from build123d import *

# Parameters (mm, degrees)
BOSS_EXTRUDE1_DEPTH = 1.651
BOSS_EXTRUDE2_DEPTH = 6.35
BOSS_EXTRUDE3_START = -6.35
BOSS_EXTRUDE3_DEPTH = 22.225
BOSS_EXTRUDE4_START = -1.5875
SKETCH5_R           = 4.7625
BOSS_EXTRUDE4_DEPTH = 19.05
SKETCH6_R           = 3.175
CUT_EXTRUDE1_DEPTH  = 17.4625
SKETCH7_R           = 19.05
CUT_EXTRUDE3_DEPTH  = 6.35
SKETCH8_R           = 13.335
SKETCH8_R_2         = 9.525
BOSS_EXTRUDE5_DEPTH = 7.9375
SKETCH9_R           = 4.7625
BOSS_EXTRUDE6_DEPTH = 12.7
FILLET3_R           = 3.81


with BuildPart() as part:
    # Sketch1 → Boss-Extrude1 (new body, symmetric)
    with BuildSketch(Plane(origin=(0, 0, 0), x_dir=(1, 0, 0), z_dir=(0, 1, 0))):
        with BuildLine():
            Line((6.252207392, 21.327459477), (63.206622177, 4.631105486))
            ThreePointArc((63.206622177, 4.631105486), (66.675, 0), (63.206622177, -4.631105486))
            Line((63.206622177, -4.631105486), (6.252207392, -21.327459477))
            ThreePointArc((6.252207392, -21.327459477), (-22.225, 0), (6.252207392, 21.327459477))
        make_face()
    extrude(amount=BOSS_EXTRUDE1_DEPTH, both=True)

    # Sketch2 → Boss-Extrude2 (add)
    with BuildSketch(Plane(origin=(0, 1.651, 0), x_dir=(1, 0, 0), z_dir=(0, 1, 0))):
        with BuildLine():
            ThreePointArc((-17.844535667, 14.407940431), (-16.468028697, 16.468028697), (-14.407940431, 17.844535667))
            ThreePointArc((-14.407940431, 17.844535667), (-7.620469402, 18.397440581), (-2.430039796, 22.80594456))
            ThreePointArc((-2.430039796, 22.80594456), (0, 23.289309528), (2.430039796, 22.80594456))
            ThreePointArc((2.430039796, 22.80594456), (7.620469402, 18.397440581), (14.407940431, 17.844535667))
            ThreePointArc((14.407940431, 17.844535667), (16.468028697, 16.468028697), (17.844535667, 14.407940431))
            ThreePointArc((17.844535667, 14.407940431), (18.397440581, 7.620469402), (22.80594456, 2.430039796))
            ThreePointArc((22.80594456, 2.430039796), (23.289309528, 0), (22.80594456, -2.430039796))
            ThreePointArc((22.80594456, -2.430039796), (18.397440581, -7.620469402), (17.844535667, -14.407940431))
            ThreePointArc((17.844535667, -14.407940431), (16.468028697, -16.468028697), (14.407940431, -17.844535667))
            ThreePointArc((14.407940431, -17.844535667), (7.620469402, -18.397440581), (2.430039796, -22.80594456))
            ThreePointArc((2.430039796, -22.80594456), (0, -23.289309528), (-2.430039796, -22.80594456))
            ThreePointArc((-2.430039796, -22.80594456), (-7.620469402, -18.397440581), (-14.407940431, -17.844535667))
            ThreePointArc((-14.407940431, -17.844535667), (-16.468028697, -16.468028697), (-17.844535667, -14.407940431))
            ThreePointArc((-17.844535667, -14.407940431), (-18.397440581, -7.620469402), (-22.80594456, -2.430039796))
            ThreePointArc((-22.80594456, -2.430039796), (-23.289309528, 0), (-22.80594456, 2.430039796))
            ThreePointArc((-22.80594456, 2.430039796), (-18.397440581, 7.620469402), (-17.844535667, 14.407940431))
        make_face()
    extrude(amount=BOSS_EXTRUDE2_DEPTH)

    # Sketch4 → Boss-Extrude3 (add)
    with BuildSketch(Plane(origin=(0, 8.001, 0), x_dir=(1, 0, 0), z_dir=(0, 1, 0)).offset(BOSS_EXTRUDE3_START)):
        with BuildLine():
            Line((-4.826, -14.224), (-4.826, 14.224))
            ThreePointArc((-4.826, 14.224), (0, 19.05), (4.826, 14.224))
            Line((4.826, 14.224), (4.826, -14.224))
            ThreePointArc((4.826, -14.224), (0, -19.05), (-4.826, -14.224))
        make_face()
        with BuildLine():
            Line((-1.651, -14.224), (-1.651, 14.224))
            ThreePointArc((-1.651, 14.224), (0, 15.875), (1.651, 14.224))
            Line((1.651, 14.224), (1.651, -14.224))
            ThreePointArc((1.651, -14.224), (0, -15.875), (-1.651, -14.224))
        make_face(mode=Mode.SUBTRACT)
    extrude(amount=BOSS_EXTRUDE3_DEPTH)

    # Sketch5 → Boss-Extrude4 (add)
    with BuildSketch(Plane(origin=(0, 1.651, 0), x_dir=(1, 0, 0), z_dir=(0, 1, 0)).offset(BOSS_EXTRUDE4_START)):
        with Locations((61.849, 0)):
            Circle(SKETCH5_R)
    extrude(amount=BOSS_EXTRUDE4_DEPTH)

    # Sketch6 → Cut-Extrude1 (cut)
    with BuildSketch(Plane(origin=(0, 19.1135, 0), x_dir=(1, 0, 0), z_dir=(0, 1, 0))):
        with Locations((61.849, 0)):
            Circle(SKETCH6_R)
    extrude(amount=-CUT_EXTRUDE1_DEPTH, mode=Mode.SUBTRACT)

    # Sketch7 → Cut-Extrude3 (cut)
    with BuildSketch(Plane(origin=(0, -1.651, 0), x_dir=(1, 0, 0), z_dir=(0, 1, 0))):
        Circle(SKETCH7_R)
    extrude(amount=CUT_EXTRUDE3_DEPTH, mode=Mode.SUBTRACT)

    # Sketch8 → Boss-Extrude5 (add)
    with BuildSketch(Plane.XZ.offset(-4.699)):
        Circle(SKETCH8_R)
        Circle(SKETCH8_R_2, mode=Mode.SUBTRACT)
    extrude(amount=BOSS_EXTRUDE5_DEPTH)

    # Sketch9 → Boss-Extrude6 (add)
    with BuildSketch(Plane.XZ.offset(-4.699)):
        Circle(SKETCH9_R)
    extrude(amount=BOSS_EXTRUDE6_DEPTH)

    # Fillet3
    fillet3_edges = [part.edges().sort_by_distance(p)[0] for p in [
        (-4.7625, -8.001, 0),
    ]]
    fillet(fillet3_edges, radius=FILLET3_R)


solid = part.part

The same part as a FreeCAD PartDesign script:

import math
import FreeCAD as App
import Part
import Sketcher

V = App.Vector
Q = App.Units.Quantity


def edges_at(feature, points):
    """Names of the edges that pass closest to the given points."""
    edges = feature.Shape.Edges
    near = lambda p: min(range(len(edges)), key=lambda i: edges[i].distToShape(Part.Vertex(*p))[0])
    return sorted({f"Edge{near(p) + 1}" for p in points})

doc = App.newDocument("Part")
body = doc.addObject("PartDesign::Body", "Body")

# Sketch on XZ plane
sketch1 = doc.addObject("Sketcher::SketchObject", "Sketch")
body.addObject(sketch1)
sketch1.AttachmentSupport = (doc.XZ_Plane, [""])
sketch1.MapMode = "FlatFace"
sketch1.addGeometry(Part.LineSegment(V(63.206622, -4.631105, 0), V(6.252207, -21.327459, 0)), False)
sketch1.addGeometry(Part.ArcOfCircle(Part.Circle(V(0, 0, 0), V(0, 0, 1), 22.225), math.radians(73.661346), math.radians(286.338654)), False)
sketch1.addGeometry(Part.LineSegment(V(6.252207, 21.327459, 0), V(63.206622, 4.631105, 0)), False)
sketch1.addGeometry(Part.ArcOfCircle(Part.Circle(V(61.849, 0, 0), V(0, 0, 1), 4.826), math.radians(-73.661346), math.radians(73.661346)), False)
sketch1.addConstraint(Sketcher.Constraint("Tangent", 0, 2, 1, 2))
sketch1.addConstraint(Sketcher.Constraint("Tangent", 1, 1, 2, 1))
sketch1.addConstraint(Sketcher.Constraint("Tangent", 2, 2, 3, 2))
sketch1.addConstraint(Sketcher.Constraint("Tangent", 3, 1, 0, 1))
sketch1.addConstraint(Sketcher.Constraint("Coincident", 1, 3, -1, 1))
sketch1.addConstraint(Sketcher.Constraint("PointOnObject", 3, 3, -1))
sketch1.addConstraint(Sketcher.Constraint("Radius", 3, Q("0.19 in")))
sketch1.addConstraint(Sketcher.Constraint("Radius", 1, Q("0.875 in")))
sketch1.addConstraint(Sketcher.Constraint("DistanceX", -1, 1, 3, 3, Q("2.435 in")))
pad1 = doc.addObject("PartDesign::Pad", "Pad")
body.addObject(pad1)
pad1.Profile = sketch1
pad1.Length = Q("0.13 in")
pad1.Midplane = True

# Sketch on XZ plane
sketch2 = doc.addObject("Sketcher::SketchObject", "Sketch001")
body.addObject(sketch2)
sketch2.AttachmentSupport = (doc.XZ_Plane, [""])
sketch2.MapMode = "FlatFace"
sketch2.AttachmentOffset = App.Placement(V(0, 0, -0.065 * 25.4), App.Rotation())
sketch2.addGeometry(Part.ArcOfCircle(Part.Circle(V(-11.977901, -11.977901, 0), V(0, 0, 1), 6.35), math.radians(-157.5), math.radians(-112.5)), False)
sketch2.addGeometry(Part.ArcOfCircle(Part.Circle(V(-28.664052, -11.873039, 0), V(0, 0, 1), 11.1125), math.radians(-13.185979), math.radians(58.185979)), False)
sketch2.addGeometry(Part.ArcOfCircle(Part.Circle(V(-16.93931, 0, 0), V(0, 0, 1), 6.35), math.radians(157.5), math.radians(202.5)), False)
sketch2.addGeometry(Part.ArcOfCircle(Part.Circle(V(-28.664052, 11.873039, 0), V(0, 0, 1), 11.1125), math.radians(-58.185979), math.radians(13.185979)), False)
sketch2.addGeometry(Part.ArcOfCircle(Part.Circle(V(-11.977901, 11.977901, 0), V(0, 0, 1), 6.35), math.radians(112.5), math.radians(157.5)), False)
sketch2.addGeometry(Part.ArcOfCircle(Part.Circle(V(-11.873039, 28.664052, 0), V(0, 0, 1), 11.1125), math.radians(-103.185979), math.radians(-31.814021)), False)
sketch2.addGeometry(Part.ArcOfCircle(Part.Circle(V(0, 16.93931, 0), V(0, 0, 1), 6.35), math.radians(67.5), math.radians(112.5)), False)
sketch2.addGeometry(Part.ArcOfCircle(Part.Circle(V(11.873039, 28.664052, 0), V(0, 0, 1), 11.1125), math.radians(-148.185979), math.radians(-76.814021)), False)
sketch2.addGeometry(Part.ArcOfCircle(Part.Circle(V(11.977901, 11.977901, 0), V(0, 0, 1), 6.35), math.radians(22.5), math.radians(67.5)), False)
sketch2.addGeometry(Part.ArcOfCircle(Part.Circle(V(28.664052, 11.873039, 0), V(0, 0, 1), 11.1125), math.radians(166.814021), math.radians(238.185979)), False)
sketch2.addGeometry(Part.ArcOfCircle(Part.Circle(V(16.93931, 0, 0), V(0, 0, 1), 6.35), math.radians(-22.5), math.radians(22.5)), False)
sketch2.addGeometry(Part.ArcOfCircle(Part.Circle(V(28.664052, -11.873039, 0), V(0, 0, 1), 11.1125), math.radians(121.814021), math.radians(193.185979)), False)
sketch2.addGeometry(Part.ArcOfCircle(Part.Circle(V(11.977901, -11.977901, 0), V(0, 0, 1), 6.35), math.radians(-67.5), math.radians(-22.5)), False)
sketch2.addGeometry(Part.ArcOfCircle(Part.Circle(V(11.873039, -28.664052, 0), V(0, 0, 1), 11.1125), math.radians(76.814021), math.radians(148.185979)), False)
sketch2.addGeometry(Part.ArcOfCircle(Part.Circle(V(0, -16.93931, 0), V(0, 0, 1), 6.35), math.radians(-112.5), math.radians(-67.5)), False)
sketch2.addGeometry(Part.ArcOfCircle(Part.Circle(V(-11.873039, -28.664052, 0), V(0, 0, 1), 11.1125), math.radians(31.814021), math.radians(103.185979)), False)
sketch2.addConstraint(Sketcher.Constraint("Coincident", 0, 1, 1, 1))
sketch2.addConstraint(Sketcher.Constraint("Coincident", 1, 2, 2, 2))
sketch2.addConstraint(Sketcher.Constraint("Coincident", 2, 1, 3, 1))
sketch2.addConstraint(Sketcher.Constraint("Coincident", 3, 2, 4, 2))
sketch2.addConstraint(Sketcher.Constraint("Coincident", 4, 1, 5, 1))
sketch2.addConstraint(Sketcher.Constraint("Coincident", 5, 2, 6, 2))
sketch2.addConstraint(Sketcher.Constraint("Coincident", 6, 1, 7, 1))
sketch2.addConstraint(Sketcher.Constraint("Coincident", 7, 2, 8, 2))
sketch2.addConstraint(Sketcher.Constraint("Coincident", 8, 1, 9, 1))
sketch2.addConstraint(Sketcher.Constraint("Coincident", 9, 2, 10, 2))
sketch2.addConstraint(Sketcher.Constraint("Coincident", 10, 1, 11, 1))
sketch2.addConstraint(Sketcher.Constraint("Coincident", 11, 2, 12, 2))
sketch2.addConstraint(Sketcher.Constraint("Coincident", 12, 1, 13, 1))
sketch2.addConstraint(Sketcher.Constraint("Coincident", 13, 2, 14, 2))
sketch2.addConstraint(Sketcher.Constraint("Coincident", 14, 1, 15, 1))
sketch2.addConstraint(Sketcher.Constraint("Coincident", 15, 2, 0, 2))
sketch2.addConstraint(Sketcher.Constraint("Equal", 0, 2))
sketch2.addConstraint(Sketcher.Constraint("Equal", 1, 3))
sketch2.addConstraint(Sketcher.Constraint("Equal", 2, 4))
sketch2.addConstraint(Sketcher.Constraint("Equal", 3, 5))
sketch2.addConstraint(Sketcher.Constraint("Equal", 4, 6))
sketch2.addConstraint(Sketcher.Constraint("Equal", 5, 7))
sketch2.addConstraint(Sketcher.Constraint("Equal", 6, 8))
sketch2.addConstraint(Sketcher.Constraint("Equal", 7, 9))
sketch2.addConstraint(Sketcher.Constraint("Equal", 8, 10))
sketch2.addConstraint(Sketcher.Constraint("Equal", 9, 11))
sketch2.addConstraint(Sketcher.Constraint("Equal", 10, 12))
sketch2.addConstraint(Sketcher.Constraint("Equal", 11, 13))
sketch2.addConstraint(Sketcher.Constraint("Equal", 12, 14))
sketch2.addConstraint(Sketcher.Constraint("Equal", 13, 15))
sketch2.addConstraint(Sketcher.Constraint("Symmetric", 0, 3, 8, 3, -1, 1))
sketch2.addConstraint(Sketcher.Constraint("Symmetric", 1, 3, 9, 3, -1, 1))
sketch2.addConstraint(Sketcher.Constraint("Symmetric", 2, 3, 10, 3, -1, 1))
sketch2.addConstraint(Sketcher.Constraint("Symmetric", 3, 3, 11, 3, -1, 1))
sketch2.addConstraint(Sketcher.Constraint("Symmetric", 4, 3, 12, 3, -1, 1))
sketch2.addConstraint(Sketcher.Constraint("Symmetric", 5, 3, 13, 3, -1, 1))
sketch2.addConstraint(Sketcher.Constraint("Symmetric", 6, 3, 14, 3, -1, 1))
sketch2.addConstraint(Sketcher.Constraint("Symmetric", 7, 3, 15, 3, -1, 1))
sketch2.addConstraint(Sketcher.Constraint("Symmetric", 5, 3, 7, 3, -2))
sketch2.addConstraint(Sketcher.Constraint("Symmetric", 4, 3, 8, 3, -2))
sketch2.addConstraint(Sketcher.Constraint("Symmetric", 3, 3, 9, 3, -2))
sketch2.addConstraint(Sketcher.Constraint("PointOnObject", 2, 3, -1))
sketch2.addConstraint(Sketcher.Constraint("PointOnObject", 6, 3, -2))
sketch2.addConstraint(Sketcher.Constraint("Radius", 0, Q("0.25 in")))
sketch2.addConstraint(Sketcher.Constraint("Radius", 1, Q("0.4375 in")))
sketch2.addConstraint(Sketcher.Constraint("DistanceY", 0, 3, 1, 2, Q("0.3759 in")))
sketch2.addConstraint(Sketcher.Constraint("DistanceX", 4, 3, 5, 2, Q("0.3759 in")))
sketch2.addConstraint(Sketcher.Constraint("DistanceX", 0, 3, -1, 1, 11.977901))
sketch2.addConstraint(Sketcher.Constraint("DistanceY", 0, 3, -1, 1, 11.977901))
sketch2.addConstraint(Sketcher.Constraint("DistanceY", 0, 1, 1, 3, 2.534901))
sketch2.addConstraint(Sketcher.Constraint("DistanceY", 1, 3, 1, 2, 9.442999))
sketch2.addConstraint(Sketcher.Constraint("DistanceX", 4, 1, 5, 3, 2.534901))
sketch2.addConstraint(Sketcher.Constraint("DistanceX", 5, 3, 5, 2, 9.442999))
pad2 = doc.addObject("PartDesign::Pad", "Pad001")
body.addObject(pad2)
pad2.Profile = sketch2
pad2.Length = Q("0.25 in")
pad2.Reversed = True

# Sketch on XZ plane
sketch3 = doc.addObject("Sketcher::SketchObject", "Sketch002")
body.addObject(sketch3)
sketch3.AttachmentSupport = (doc.XZ_Plane, [""])
sketch3.MapMode = "FlatFace"
sketch3.AttachmentOffset = App.Placement(V(0, 0, -0.065 * 25.4), App.Rotation())
sketch3.addGeometry(Part.LineSegment(V(-4.826, -14.224, 0), V(-4.826, 14.224, 0)), False)
sketch3.addGeometry(Part.ArcOfCircle(Part.Circle(V(0, 14.224, 0), V(0, 0, 1), 4.826), math.radians(0), math.radians(180)), False)
sketch3.addGeometry(Part.LineSegment(V(4.826, 14.224, 0), V(4.826, -14.224, 0)), False)
sketch3.addGeometry(Part.ArcOfCircle(Part.Circle(V(0, -14.224, 0), V(0, 0, 1), 4.826), math.radians(180), math.radians(360)), False)
sketch3.addGeometry(Part.LineSegment(V(-1.651, 14.224, 0), V(-1.651, -14.224, 0)), False)
sketch3.addGeometry(Part.ArcOfCircle(Part.Circle(V(0, -14.224, 0), V(0, 0, 1), 1.651), math.radians(180), math.radians(360)), False)
sketch3.addGeometry(Part.LineSegment(V(1.651, -14.224, 0), V(1.651, 14.224, 0)), False)
sketch3.addGeometry(Part.ArcOfCircle(Part.Circle(V(0, 14.224, 0), V(0, 0, 1), 1.651), math.radians(0), math.radians(180)), False)
sketch3.addConstraint(Sketcher.Constraint("Tangent", 0, 2, 1, 2))
sketch3.addConstraint(Sketcher.Constraint("Tangent", 1, 1, 2, 1))
sketch3.addConstraint(Sketcher.Constraint("Tangent", 2, 2, 3, 2))
sketch3.addConstraint(Sketcher.Constraint("Tangent", 3, 1, 0, 1))
sketch3.addConstraint(Sketcher.Constraint("Tangent", 4, 2, 5, 1))
sketch3.addConstraint(Sketcher.Constraint("Tangent", 5, 2, 6, 1))
sketch3.addConstraint(Sketcher.Constraint("Tangent", 6, 2, 7, 1))
sketch3.addConstraint(Sketcher.Constraint("Tangent", 7, 2, 4, 1))
sketch3.addConstraint(Sketcher.Constraint("Vertical", 0))
sketch3.addConstraint(Sketcher.Constraint("Vertical", 2))
sketch3.addConstraint(Sketcher.Constraint("Vertical", 4))
sketch3.addConstraint(Sketcher.Constraint("Vertical", 6))
sketch3.addConstraint(Sketcher.Constraint("Coincident", 5, 3, 3, 3))
sketch3.addConstraint(Sketcher.Constraint("Symmetric", 1, 3, 3, 3, -1, 1))
sketch3.addConstraint(Sketcher.Constraint("Horizontal", 7, 3, 0, 2))
sketch3.addConstraint(Sketcher.Constraint("Radius", 1, Q("0.19 in")))
sketch3.addConstraint(Sketcher.Constraint("Radius", 5, Q("0.065 in")))
sketch3.addConstraint(Sketcher.Constraint("DistanceY", 0, 1, 0, 2, Q("1.12 in")))
pad3 = doc.addObject("PartDesign::Pad", "Pad002")
body.addObject(pad3)
pad3.Profile = sketch3
pad3.Length = Q("0.875 in")
pad3.Reversed = True

# Sketch on XZ plane
sketch4 = doc.addObject("Sketcher::SketchObject", "Sketch003")
body.addObject(sketch4)
sketch4.AttachmentSupport = (doc.XZ_Plane, [""])
sketch4.MapMode = "FlatFace"
sketch4.AttachmentOffset = App.Placement(V(0, 0, -0.0025 * 25.4), App.Rotation())
sketch4.addGeometry(Part.Circle(V(61.849, 0, 0), V(0, 0, 1), 4.7625), False)
sketch4.addConstraint(Sketcher.Constraint("PointOnObject", 0, 3, -1))
sketch4.addConstraint(Sketcher.Constraint("Diameter", 0, Q("0.375 in")))
sketch4.addConstraint(Sketcher.Constraint("DistanceX", -1, 1, 0, 3, Q("2.435 in")))
pad4 = doc.addObject("PartDesign::Pad", "Pad003")
body.addObject(pad4)
pad4.Profile = sketch4
pad4.Length = Q("0.75 in")
pad4.Reversed = True

# Sketch on XZ plane
sketch5 = doc.addObject("Sketcher::SketchObject", "Sketch004")
body.addObject(sketch5)
sketch5.AttachmentSupport = (doc.XZ_Plane, [""])
sketch5.MapMode = "FlatFace"
sketch5.AttachmentOffset = App.Placement(V(0, 0, -0.7525 * 25.4), App.Rotation())
sketch5.addGeometry(Part.Circle(V(61.849, 0, 0), V(0, 0, 1), 3.175), False)
sketch5.addConstraint(Sketcher.Constraint("PointOnObject", 0, 3, -1))
sketch5.addConstraint(Sketcher.Constraint("Diameter", 0, Q("0.25 in")))
sketch5.addConstraint(Sketcher.Constraint("DistanceX", -1, 1, 0, 3, Q("2.435 in")))
pocket1 = doc.addObject("PartDesign::Pocket", "Pocket")
body.addObject(pocket1)
pocket1.Profile = sketch5
pocket1.Length = Q("0.6875 in")
pocket1.Reversed = True

# Sketch on XZ plane
sketch6 = doc.addObject("Sketcher::SketchObject", "Sketch005")
body.addObject(sketch6)
sketch6.AttachmentSupport = (doc.XZ_Plane, [""])
sketch6.MapMode = "FlatFace"
sketch6.AttachmentOffset = App.Placement(V(0, 0, 0.065 * 25.4), App.Rotation())
sketch6.addGeometry(Part.Circle(V(0, 0, 0), V(0, 0, 1), 19.05), False)
sketch6.addConstraint(Sketcher.Constraint("Coincident", 0, 3, -1, 1))
sketch6.addConstraint(Sketcher.Constraint("Diameter", 0, Q("1.5 in")))
pocket2 = doc.addObject("PartDesign::Pocket", "Pocket001")
body.addObject(pocket2)
pocket2.Profile = sketch6
pocket2.Length = Q("0.25 in")

# Sketch on XZ plane
sketch7 = doc.addObject("Sketcher::SketchObject", "Sketch006")
body.addObject(sketch7)
sketch7.AttachmentSupport = (doc.XZ_Plane, [""])
sketch7.MapMode = "FlatFace"
sketch7.AttachmentOffset = App.Placement(V(0, 0, -0.185 * 25.4), App.Rotation())
sketch7.addGeometry(Part.Circle(V(0, 0, 0), V(0, 0, 1), 13.335), False)
sketch7.addGeometry(Part.Circle(V(0, 0, 0), V(0, 0, 1), 9.525), False)
sketch7.addConstraint(Sketcher.Constraint("Coincident", 0, 3, -1, 1))
sketch7.addConstraint(Sketcher.Constraint("Coincident", 1, 3, -1, 1))
sketch7.addConstraint(Sketcher.Constraint("Diameter", 0, Q("1.05 in")))
sketch7.addConstraint(Sketcher.Constraint("Diameter", 1, Q("0.75 in")))
pad5 = doc.addObject("PartDesign::Pad", "Pad004")
body.addObject(pad5)
pad5.Profile = sketch7
pad5.Length = Q("0.3125 in")

# Sketch on XZ plane
sketch8 = doc.addObject("Sketcher::SketchObject", "Sketch007")
body.addObject(sketch8)
sketch8.AttachmentSupport = (doc.XZ_Plane, [""])
sketch8.MapMode = "FlatFace"
sketch8.AttachmentOffset = App.Placement(V(0, 0, -0.185 * 25.4), App.Rotation())
sketch8.addGeometry(Part.Circle(V(0, 0, 0), V(0, 0, 1), 4.7625), False)
sketch8.addConstraint(Sketcher.Constraint("Coincident", 0, 3, -1, 1))
sketch8.addConstraint(Sketcher.Constraint("Diameter", 0, Q("0.375 in")))
pad6 = doc.addObject("PartDesign::Pad", "Pad005")
body.addObject(pad6)
pad6.Profile = sketch8
pad6.Length = Q("0.5 in")
doc.recompute()

fillet = doc.addObject("PartDesign::Fillet", "Fillet")
body.addObject(fillet)
fillet.Base = (pad6, edges_at(pad6, [(-4.763, -8.001, 0)]))
fillet.Radius = Q("0.15 in")

doc.recompute()
